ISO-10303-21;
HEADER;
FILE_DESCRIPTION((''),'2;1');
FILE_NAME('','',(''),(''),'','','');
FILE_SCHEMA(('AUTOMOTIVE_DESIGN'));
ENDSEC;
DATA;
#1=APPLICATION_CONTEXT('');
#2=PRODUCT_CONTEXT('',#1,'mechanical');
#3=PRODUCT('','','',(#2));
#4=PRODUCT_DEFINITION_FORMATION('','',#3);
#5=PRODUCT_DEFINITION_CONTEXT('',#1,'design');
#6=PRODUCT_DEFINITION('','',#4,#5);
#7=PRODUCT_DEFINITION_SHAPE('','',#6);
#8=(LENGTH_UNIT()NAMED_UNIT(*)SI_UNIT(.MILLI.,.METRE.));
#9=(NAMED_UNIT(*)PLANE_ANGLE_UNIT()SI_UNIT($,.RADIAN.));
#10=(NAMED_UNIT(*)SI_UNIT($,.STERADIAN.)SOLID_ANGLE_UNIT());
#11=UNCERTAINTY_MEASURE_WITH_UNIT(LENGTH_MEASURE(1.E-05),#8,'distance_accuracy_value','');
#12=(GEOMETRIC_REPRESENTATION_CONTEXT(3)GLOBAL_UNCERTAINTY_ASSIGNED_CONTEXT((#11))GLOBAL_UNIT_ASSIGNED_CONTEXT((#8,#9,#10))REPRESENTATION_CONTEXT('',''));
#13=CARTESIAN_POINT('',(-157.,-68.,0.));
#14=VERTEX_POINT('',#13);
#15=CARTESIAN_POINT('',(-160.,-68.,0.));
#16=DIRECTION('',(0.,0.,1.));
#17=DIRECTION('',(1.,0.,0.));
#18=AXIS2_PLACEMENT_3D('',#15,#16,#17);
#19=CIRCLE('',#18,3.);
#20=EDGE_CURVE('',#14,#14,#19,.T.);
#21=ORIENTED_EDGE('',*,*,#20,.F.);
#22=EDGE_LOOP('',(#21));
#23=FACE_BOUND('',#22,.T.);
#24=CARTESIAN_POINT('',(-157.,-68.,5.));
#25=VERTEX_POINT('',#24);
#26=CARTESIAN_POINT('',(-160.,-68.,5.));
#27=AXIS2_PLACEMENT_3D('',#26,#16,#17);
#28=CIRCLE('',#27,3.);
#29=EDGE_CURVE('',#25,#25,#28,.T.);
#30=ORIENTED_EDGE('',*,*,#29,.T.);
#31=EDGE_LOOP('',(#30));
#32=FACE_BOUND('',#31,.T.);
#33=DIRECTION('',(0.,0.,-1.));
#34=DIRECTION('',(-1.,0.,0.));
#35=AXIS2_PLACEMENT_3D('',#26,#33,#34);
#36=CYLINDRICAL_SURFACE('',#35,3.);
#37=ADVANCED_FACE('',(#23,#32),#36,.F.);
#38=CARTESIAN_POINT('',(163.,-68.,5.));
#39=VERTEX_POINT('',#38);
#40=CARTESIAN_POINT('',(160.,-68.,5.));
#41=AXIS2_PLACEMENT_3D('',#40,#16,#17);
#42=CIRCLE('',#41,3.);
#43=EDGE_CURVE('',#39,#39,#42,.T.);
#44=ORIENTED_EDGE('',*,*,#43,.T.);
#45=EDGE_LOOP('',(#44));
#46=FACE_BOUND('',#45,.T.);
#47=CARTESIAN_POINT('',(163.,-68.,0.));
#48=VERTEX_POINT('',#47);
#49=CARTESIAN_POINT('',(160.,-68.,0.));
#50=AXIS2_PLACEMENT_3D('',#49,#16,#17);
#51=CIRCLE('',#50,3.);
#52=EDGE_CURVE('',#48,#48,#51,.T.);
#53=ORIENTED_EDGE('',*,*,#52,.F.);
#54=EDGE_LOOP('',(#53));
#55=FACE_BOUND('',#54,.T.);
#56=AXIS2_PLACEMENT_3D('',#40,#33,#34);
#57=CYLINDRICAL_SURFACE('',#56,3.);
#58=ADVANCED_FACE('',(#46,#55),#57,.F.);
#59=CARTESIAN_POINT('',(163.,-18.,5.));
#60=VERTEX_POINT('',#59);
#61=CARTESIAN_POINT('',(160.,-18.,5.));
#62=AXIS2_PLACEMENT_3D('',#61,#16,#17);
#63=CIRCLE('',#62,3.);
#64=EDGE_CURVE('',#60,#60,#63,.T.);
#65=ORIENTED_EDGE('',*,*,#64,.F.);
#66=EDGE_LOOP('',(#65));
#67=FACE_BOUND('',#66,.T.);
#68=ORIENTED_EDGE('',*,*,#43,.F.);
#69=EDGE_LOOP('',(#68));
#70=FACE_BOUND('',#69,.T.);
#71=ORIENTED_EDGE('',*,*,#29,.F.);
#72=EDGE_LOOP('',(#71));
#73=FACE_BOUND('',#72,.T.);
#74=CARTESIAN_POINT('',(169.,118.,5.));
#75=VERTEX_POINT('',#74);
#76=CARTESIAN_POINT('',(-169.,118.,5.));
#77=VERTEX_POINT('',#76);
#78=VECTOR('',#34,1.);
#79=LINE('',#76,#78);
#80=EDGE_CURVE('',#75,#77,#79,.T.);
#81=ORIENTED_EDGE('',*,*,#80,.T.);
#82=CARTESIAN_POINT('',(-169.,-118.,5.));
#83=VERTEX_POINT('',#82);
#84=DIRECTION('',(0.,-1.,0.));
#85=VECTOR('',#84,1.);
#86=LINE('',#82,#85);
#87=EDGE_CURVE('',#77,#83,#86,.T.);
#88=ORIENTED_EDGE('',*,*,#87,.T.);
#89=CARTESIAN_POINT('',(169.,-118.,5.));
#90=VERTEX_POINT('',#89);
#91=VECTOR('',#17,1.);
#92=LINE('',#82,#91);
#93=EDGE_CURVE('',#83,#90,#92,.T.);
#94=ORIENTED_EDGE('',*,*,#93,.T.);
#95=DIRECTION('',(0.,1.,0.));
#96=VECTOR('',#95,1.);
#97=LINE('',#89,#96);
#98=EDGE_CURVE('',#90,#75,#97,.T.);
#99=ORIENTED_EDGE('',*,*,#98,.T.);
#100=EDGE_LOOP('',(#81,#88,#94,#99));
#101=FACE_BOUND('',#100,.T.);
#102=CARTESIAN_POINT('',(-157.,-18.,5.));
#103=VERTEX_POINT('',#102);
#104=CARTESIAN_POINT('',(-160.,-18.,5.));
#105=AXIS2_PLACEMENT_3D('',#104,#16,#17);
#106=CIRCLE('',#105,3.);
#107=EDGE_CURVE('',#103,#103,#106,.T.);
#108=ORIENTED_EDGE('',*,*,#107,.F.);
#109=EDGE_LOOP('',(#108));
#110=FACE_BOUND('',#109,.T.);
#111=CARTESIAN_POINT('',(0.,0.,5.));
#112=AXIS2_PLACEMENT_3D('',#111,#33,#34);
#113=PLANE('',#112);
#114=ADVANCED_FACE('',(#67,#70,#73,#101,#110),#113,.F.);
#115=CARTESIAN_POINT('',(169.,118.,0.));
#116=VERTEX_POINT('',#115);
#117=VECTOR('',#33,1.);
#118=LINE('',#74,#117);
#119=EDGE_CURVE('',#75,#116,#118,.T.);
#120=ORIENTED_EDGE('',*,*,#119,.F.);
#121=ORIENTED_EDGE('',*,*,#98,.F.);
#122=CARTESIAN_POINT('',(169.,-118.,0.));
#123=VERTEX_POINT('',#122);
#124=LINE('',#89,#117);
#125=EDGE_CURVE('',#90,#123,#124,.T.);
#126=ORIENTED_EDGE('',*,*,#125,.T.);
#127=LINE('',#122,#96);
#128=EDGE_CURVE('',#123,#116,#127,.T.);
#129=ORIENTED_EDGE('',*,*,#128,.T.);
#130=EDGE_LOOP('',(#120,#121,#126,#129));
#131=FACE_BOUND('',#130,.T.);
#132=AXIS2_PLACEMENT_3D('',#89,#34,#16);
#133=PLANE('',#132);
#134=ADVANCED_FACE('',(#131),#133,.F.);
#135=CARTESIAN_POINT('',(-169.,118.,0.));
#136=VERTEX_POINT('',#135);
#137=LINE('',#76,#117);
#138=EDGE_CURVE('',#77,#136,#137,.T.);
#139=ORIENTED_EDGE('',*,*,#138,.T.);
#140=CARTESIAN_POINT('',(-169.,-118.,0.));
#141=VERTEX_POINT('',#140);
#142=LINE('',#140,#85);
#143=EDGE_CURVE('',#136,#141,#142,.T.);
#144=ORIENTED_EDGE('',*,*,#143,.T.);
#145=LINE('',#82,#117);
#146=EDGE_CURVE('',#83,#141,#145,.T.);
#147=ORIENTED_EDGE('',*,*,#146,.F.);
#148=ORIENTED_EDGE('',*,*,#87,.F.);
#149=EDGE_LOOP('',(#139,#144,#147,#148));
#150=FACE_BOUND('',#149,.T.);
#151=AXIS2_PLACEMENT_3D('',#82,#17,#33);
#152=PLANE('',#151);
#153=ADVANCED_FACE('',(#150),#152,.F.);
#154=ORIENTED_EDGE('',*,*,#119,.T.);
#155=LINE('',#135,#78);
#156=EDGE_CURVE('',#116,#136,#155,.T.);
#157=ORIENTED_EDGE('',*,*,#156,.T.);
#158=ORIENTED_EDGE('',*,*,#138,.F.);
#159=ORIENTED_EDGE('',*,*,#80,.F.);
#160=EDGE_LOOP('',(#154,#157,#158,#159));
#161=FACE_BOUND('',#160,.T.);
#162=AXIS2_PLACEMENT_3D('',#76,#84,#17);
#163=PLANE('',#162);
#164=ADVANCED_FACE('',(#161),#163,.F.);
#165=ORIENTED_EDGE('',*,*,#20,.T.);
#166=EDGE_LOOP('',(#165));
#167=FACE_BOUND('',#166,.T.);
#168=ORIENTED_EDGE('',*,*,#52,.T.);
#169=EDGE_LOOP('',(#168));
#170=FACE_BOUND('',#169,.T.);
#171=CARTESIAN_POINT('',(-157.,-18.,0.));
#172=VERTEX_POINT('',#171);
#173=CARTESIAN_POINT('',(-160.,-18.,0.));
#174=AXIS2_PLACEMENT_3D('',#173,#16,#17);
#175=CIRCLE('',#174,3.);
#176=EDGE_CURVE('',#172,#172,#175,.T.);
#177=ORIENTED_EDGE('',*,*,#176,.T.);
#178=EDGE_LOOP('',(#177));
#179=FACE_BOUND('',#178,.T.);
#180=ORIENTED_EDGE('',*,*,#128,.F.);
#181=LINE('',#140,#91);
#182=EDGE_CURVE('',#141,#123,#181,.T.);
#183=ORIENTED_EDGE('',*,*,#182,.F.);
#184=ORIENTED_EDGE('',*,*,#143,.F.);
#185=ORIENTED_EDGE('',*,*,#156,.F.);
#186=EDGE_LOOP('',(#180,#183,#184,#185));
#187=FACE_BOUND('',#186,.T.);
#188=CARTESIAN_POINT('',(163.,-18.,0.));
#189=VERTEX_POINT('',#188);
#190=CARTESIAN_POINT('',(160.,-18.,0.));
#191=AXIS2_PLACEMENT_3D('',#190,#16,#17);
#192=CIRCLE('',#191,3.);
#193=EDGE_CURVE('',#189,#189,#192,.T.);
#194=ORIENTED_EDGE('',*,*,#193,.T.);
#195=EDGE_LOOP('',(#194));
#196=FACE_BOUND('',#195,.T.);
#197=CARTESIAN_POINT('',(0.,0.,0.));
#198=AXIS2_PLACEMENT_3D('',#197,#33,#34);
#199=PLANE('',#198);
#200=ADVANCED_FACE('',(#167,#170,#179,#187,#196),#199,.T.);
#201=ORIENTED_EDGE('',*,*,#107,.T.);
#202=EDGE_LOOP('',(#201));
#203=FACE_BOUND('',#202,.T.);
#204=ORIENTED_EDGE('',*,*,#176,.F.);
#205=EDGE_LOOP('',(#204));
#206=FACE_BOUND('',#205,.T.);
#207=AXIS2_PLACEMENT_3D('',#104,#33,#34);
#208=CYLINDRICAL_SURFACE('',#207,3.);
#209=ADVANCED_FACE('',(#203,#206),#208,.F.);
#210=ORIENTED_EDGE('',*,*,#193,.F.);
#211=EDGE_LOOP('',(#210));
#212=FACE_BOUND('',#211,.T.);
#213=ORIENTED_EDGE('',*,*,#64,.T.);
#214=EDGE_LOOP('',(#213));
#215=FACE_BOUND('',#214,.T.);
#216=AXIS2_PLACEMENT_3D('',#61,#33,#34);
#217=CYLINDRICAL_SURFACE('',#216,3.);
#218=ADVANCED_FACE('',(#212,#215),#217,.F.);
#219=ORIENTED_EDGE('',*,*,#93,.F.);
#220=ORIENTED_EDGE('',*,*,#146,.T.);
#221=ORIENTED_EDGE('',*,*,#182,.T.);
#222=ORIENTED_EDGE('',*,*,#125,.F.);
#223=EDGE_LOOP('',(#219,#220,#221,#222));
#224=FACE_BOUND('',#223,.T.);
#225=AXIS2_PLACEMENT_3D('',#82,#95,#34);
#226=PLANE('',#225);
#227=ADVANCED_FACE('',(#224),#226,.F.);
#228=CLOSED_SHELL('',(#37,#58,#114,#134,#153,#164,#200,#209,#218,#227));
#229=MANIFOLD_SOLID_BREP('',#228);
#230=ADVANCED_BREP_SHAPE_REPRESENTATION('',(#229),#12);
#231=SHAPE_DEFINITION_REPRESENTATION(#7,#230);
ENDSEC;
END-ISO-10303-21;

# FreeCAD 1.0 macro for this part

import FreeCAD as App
import Part
import Sketcher

doc = App.newDocument("Part")
body = doc.addObject("PartDesign::Body", "Body")

# Sketch on XY plane
sketch1 = doc.addObject("Sketcher::SketchObject", "Sketch")
body.addObject(sketch1)
sketch1.AttachmentSupport = (doc.XY_Plane, [""])
sketch1.MapMode = "FlatFace"
sketch1.addGeometry([
    Part.LineSegment(App.Vector(-169, 118, 0), App.Vector(-169, -118, 0)),  # 0
    Part.LineSegment(App.Vector(-169, -118, 0), App.Vector(169, -118, 0)),  # 1
    Part.LineSegment(App.Vector(169, -118, 0), App.Vector(169, 118, 0)),  # 2
    Part.LineSegment(App.Vector(169, 118, 0), App.Vector(-169, 118, 0)),  # 3
    Part.Circle(App.Vector(-160, -68, 0), App.Vector(0, 0, 1), 3),  # 4
    Part.Circle(App.Vector(160, -68, 0), App.Vector(0, 0, 1), 3),  # 5
    Part.Circle(App.Vector(-160, -18, 0), App.Vector(0, 0, 1), 3),  # 6
    Part.Circle(App.Vector(160, -18, 0), App.Vector(0, 0, 1), 3),  # 7
], False)
sketch1.addConstraint([
    Sketcher.Constraint("Coincident", 0, 2, 1, 1),
    Sketcher.Constraint("Coincident", 1, 2, 2, 1),
    Sketcher.Constraint("Coincident", 2, 2, 3, 1),
    Sketcher.Constraint("Coincident", 3, 2, 0, 1),
    Sketcher.Constraint("Vertical", 0),
    Sketcher.Constraint("Horizontal", 1),
    Sketcher.Constraint("Vertical", 2),
    Sketcher.Constraint("Horizontal", 3),
    Sketcher.Constraint("Equal", 4, 5),
    Sketcher.Constraint("Equal", 5, 6),
    Sketcher.Constraint("Equal", 6, 7),
    Sketcher.Constraint("Symmetric", 0, 2, 2, 2, -1, 1),
    Sketcher.Constraint("Symmetric", 4, 3, 5, 3, -2),
    Sketcher.Constraint("Symmetric", 6, 3, 7, 3, -2),
    Sketcher.Constraint("Vertical", 4, 3, 6, 3),
    Sketcher.Constraint("Diameter", 4, 6.0),
    Sketcher.Constraint("DistanceX", 1, 1, 1, 2, 338.0),
    Sketcher.Constraint("DistanceY", 0, 2, 0, 1, 236.0),
    Sketcher.Constraint("DistanceX", 4, 3, -1, 1, 160.0),
    Sketcher.Constraint("DistanceY", 4, 3, -1, 1, 68.0),
    Sketcher.Constraint("DistanceY", 6, 3, -1, 1, 18.0),
])
pad1 = doc.addObject("PartDesign::Pad", "Pad")
body.addObject(pad1)
pad1.Profile = sketch1
pad1.Length = 5

doc.recompute()
